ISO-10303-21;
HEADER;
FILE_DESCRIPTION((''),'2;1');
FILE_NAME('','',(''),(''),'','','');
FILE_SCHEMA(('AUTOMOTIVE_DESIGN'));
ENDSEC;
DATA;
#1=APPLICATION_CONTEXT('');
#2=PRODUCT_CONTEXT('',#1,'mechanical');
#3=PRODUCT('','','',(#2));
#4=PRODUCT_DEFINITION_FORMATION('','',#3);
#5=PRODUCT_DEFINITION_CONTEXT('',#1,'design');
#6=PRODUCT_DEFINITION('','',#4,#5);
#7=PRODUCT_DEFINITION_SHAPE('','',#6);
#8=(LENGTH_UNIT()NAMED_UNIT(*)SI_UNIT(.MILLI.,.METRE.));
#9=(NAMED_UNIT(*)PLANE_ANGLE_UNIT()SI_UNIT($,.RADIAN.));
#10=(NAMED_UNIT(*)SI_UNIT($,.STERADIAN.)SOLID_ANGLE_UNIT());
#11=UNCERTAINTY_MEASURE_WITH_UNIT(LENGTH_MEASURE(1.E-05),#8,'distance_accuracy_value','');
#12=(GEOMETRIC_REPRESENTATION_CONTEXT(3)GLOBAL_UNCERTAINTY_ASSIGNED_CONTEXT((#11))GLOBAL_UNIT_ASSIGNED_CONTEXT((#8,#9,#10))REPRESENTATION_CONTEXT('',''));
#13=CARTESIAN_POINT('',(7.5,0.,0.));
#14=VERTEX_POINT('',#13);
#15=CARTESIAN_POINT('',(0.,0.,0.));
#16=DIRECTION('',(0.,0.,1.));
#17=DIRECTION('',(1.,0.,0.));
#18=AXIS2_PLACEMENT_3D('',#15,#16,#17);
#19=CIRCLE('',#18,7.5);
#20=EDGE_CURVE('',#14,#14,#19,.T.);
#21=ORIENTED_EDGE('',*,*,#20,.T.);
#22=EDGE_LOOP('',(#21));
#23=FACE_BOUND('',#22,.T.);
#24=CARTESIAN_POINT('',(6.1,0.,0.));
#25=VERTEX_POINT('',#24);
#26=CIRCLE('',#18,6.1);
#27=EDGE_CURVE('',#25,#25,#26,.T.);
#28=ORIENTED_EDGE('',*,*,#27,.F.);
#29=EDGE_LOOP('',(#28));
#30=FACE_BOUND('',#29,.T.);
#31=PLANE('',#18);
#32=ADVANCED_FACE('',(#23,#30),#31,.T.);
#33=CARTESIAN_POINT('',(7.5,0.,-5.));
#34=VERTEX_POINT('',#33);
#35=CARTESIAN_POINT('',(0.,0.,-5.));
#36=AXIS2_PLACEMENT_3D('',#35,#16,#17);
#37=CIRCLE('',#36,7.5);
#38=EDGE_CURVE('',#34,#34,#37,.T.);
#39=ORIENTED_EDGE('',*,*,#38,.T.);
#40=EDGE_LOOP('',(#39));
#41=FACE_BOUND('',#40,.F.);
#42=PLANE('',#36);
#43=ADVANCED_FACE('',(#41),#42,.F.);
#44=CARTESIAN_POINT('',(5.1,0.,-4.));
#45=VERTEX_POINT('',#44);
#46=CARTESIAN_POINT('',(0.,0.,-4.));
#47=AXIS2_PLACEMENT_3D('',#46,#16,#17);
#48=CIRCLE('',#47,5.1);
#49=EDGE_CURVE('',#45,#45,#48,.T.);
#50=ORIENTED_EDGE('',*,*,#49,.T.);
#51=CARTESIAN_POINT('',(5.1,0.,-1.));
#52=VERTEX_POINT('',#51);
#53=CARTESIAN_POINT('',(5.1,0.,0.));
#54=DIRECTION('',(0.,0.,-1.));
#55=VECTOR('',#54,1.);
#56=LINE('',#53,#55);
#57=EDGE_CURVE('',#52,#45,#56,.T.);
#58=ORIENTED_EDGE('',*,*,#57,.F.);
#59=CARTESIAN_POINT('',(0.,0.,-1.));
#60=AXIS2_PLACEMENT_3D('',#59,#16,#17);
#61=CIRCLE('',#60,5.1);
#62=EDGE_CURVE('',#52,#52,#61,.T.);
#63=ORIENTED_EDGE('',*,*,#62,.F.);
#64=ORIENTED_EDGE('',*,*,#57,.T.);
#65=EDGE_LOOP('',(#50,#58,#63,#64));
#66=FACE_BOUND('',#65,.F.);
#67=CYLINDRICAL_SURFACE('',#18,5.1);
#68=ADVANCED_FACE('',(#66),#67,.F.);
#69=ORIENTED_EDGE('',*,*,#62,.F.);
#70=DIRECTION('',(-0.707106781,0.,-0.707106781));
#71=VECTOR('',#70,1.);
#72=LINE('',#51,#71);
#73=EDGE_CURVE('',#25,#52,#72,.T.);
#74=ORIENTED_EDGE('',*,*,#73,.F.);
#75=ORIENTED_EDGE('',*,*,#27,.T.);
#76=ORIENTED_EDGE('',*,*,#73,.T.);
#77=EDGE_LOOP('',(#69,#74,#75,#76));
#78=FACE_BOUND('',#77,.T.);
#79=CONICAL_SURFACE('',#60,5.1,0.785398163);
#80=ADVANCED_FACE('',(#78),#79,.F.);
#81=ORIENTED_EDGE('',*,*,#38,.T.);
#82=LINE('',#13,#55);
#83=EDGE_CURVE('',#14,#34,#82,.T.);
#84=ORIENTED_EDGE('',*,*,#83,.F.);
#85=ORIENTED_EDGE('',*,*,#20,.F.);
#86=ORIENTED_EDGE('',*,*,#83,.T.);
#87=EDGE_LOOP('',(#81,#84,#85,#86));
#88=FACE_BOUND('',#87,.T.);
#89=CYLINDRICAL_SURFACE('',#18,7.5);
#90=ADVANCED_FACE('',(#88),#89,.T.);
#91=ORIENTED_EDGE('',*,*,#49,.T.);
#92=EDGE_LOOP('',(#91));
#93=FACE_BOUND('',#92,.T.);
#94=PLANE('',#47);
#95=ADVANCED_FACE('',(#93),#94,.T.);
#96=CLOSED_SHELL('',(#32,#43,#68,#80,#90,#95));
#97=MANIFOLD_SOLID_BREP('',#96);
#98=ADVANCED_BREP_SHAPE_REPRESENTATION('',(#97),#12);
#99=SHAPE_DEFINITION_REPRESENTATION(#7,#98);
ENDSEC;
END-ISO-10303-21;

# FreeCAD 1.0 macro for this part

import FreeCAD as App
import Part
import Sketcher


def edges_at(feature, points):
    """Names of the edges that pass closest to the given points."""
    edges = feature.Shape.Edges
    near = lambda p: min(range(len(edges)), key=lambda i: edges[i].distToShape(Part.Vertex(*p))[0])
    return sorted({f"Edge{near(p) + 1}" for p in points})

doc = App.newDocument("Part")
body = doc.addObject("PartDesign::Body", "Body")

sketch1 = body.newObject("Sketcher::SketchObject", "Sketch")
sketch1.AttachmentSupport = (doc.getObject("XY_Plane"), [""])
sketch1.MapMode = "FlatFace"
sketch1.addGeometry(Part.Circle(App.Vector(0, 0, 0), App.Vector(0, 0, 1), 7.5), False)
sketch1.addConstraint([
    Sketcher.Constraint("Coincident", 0, 3, -1, 1),
    Sketcher.Constraint("Diameter", 0, 15.0),
])
pad1 = body.newObject("PartDesign::Pad", "Pad")
pad1.Profile = sketch1
pad1.Length = 5
pad1.Reversed = True

sketch2 = body.newObject("Sketcher::SketchObject", "Sketch001")
sketch2.AttachmentSupport = (doc.getObject("XY_Plane"), [""])
sketch2.MapMode = "FlatFace"
sketch2.addGeometry(Part.Circle(App.Vector(0, 0, 0), App.Vector(0, 0, 1), 5.1), False)
sketch2.addConstraint([
    Sketcher.Constraint("Coincident", 0, 3, -1, 1),
    Sketcher.Constraint("Diameter", 0, 10.2),
])
pocket1 = body.newObject("PartDesign::Pocket", "Pocket")
pocket1.Profile = sketch2
pocket1.Length = 4
doc.recompute()

chamfer = body.newObject("PartDesign::Chamfer", "Chamfer")
chamfer.Base = (pocket1, edges_at(pocket1, [(-5.1, 0, 0)]))
chamfer.Size = 1

doc.recompute()
